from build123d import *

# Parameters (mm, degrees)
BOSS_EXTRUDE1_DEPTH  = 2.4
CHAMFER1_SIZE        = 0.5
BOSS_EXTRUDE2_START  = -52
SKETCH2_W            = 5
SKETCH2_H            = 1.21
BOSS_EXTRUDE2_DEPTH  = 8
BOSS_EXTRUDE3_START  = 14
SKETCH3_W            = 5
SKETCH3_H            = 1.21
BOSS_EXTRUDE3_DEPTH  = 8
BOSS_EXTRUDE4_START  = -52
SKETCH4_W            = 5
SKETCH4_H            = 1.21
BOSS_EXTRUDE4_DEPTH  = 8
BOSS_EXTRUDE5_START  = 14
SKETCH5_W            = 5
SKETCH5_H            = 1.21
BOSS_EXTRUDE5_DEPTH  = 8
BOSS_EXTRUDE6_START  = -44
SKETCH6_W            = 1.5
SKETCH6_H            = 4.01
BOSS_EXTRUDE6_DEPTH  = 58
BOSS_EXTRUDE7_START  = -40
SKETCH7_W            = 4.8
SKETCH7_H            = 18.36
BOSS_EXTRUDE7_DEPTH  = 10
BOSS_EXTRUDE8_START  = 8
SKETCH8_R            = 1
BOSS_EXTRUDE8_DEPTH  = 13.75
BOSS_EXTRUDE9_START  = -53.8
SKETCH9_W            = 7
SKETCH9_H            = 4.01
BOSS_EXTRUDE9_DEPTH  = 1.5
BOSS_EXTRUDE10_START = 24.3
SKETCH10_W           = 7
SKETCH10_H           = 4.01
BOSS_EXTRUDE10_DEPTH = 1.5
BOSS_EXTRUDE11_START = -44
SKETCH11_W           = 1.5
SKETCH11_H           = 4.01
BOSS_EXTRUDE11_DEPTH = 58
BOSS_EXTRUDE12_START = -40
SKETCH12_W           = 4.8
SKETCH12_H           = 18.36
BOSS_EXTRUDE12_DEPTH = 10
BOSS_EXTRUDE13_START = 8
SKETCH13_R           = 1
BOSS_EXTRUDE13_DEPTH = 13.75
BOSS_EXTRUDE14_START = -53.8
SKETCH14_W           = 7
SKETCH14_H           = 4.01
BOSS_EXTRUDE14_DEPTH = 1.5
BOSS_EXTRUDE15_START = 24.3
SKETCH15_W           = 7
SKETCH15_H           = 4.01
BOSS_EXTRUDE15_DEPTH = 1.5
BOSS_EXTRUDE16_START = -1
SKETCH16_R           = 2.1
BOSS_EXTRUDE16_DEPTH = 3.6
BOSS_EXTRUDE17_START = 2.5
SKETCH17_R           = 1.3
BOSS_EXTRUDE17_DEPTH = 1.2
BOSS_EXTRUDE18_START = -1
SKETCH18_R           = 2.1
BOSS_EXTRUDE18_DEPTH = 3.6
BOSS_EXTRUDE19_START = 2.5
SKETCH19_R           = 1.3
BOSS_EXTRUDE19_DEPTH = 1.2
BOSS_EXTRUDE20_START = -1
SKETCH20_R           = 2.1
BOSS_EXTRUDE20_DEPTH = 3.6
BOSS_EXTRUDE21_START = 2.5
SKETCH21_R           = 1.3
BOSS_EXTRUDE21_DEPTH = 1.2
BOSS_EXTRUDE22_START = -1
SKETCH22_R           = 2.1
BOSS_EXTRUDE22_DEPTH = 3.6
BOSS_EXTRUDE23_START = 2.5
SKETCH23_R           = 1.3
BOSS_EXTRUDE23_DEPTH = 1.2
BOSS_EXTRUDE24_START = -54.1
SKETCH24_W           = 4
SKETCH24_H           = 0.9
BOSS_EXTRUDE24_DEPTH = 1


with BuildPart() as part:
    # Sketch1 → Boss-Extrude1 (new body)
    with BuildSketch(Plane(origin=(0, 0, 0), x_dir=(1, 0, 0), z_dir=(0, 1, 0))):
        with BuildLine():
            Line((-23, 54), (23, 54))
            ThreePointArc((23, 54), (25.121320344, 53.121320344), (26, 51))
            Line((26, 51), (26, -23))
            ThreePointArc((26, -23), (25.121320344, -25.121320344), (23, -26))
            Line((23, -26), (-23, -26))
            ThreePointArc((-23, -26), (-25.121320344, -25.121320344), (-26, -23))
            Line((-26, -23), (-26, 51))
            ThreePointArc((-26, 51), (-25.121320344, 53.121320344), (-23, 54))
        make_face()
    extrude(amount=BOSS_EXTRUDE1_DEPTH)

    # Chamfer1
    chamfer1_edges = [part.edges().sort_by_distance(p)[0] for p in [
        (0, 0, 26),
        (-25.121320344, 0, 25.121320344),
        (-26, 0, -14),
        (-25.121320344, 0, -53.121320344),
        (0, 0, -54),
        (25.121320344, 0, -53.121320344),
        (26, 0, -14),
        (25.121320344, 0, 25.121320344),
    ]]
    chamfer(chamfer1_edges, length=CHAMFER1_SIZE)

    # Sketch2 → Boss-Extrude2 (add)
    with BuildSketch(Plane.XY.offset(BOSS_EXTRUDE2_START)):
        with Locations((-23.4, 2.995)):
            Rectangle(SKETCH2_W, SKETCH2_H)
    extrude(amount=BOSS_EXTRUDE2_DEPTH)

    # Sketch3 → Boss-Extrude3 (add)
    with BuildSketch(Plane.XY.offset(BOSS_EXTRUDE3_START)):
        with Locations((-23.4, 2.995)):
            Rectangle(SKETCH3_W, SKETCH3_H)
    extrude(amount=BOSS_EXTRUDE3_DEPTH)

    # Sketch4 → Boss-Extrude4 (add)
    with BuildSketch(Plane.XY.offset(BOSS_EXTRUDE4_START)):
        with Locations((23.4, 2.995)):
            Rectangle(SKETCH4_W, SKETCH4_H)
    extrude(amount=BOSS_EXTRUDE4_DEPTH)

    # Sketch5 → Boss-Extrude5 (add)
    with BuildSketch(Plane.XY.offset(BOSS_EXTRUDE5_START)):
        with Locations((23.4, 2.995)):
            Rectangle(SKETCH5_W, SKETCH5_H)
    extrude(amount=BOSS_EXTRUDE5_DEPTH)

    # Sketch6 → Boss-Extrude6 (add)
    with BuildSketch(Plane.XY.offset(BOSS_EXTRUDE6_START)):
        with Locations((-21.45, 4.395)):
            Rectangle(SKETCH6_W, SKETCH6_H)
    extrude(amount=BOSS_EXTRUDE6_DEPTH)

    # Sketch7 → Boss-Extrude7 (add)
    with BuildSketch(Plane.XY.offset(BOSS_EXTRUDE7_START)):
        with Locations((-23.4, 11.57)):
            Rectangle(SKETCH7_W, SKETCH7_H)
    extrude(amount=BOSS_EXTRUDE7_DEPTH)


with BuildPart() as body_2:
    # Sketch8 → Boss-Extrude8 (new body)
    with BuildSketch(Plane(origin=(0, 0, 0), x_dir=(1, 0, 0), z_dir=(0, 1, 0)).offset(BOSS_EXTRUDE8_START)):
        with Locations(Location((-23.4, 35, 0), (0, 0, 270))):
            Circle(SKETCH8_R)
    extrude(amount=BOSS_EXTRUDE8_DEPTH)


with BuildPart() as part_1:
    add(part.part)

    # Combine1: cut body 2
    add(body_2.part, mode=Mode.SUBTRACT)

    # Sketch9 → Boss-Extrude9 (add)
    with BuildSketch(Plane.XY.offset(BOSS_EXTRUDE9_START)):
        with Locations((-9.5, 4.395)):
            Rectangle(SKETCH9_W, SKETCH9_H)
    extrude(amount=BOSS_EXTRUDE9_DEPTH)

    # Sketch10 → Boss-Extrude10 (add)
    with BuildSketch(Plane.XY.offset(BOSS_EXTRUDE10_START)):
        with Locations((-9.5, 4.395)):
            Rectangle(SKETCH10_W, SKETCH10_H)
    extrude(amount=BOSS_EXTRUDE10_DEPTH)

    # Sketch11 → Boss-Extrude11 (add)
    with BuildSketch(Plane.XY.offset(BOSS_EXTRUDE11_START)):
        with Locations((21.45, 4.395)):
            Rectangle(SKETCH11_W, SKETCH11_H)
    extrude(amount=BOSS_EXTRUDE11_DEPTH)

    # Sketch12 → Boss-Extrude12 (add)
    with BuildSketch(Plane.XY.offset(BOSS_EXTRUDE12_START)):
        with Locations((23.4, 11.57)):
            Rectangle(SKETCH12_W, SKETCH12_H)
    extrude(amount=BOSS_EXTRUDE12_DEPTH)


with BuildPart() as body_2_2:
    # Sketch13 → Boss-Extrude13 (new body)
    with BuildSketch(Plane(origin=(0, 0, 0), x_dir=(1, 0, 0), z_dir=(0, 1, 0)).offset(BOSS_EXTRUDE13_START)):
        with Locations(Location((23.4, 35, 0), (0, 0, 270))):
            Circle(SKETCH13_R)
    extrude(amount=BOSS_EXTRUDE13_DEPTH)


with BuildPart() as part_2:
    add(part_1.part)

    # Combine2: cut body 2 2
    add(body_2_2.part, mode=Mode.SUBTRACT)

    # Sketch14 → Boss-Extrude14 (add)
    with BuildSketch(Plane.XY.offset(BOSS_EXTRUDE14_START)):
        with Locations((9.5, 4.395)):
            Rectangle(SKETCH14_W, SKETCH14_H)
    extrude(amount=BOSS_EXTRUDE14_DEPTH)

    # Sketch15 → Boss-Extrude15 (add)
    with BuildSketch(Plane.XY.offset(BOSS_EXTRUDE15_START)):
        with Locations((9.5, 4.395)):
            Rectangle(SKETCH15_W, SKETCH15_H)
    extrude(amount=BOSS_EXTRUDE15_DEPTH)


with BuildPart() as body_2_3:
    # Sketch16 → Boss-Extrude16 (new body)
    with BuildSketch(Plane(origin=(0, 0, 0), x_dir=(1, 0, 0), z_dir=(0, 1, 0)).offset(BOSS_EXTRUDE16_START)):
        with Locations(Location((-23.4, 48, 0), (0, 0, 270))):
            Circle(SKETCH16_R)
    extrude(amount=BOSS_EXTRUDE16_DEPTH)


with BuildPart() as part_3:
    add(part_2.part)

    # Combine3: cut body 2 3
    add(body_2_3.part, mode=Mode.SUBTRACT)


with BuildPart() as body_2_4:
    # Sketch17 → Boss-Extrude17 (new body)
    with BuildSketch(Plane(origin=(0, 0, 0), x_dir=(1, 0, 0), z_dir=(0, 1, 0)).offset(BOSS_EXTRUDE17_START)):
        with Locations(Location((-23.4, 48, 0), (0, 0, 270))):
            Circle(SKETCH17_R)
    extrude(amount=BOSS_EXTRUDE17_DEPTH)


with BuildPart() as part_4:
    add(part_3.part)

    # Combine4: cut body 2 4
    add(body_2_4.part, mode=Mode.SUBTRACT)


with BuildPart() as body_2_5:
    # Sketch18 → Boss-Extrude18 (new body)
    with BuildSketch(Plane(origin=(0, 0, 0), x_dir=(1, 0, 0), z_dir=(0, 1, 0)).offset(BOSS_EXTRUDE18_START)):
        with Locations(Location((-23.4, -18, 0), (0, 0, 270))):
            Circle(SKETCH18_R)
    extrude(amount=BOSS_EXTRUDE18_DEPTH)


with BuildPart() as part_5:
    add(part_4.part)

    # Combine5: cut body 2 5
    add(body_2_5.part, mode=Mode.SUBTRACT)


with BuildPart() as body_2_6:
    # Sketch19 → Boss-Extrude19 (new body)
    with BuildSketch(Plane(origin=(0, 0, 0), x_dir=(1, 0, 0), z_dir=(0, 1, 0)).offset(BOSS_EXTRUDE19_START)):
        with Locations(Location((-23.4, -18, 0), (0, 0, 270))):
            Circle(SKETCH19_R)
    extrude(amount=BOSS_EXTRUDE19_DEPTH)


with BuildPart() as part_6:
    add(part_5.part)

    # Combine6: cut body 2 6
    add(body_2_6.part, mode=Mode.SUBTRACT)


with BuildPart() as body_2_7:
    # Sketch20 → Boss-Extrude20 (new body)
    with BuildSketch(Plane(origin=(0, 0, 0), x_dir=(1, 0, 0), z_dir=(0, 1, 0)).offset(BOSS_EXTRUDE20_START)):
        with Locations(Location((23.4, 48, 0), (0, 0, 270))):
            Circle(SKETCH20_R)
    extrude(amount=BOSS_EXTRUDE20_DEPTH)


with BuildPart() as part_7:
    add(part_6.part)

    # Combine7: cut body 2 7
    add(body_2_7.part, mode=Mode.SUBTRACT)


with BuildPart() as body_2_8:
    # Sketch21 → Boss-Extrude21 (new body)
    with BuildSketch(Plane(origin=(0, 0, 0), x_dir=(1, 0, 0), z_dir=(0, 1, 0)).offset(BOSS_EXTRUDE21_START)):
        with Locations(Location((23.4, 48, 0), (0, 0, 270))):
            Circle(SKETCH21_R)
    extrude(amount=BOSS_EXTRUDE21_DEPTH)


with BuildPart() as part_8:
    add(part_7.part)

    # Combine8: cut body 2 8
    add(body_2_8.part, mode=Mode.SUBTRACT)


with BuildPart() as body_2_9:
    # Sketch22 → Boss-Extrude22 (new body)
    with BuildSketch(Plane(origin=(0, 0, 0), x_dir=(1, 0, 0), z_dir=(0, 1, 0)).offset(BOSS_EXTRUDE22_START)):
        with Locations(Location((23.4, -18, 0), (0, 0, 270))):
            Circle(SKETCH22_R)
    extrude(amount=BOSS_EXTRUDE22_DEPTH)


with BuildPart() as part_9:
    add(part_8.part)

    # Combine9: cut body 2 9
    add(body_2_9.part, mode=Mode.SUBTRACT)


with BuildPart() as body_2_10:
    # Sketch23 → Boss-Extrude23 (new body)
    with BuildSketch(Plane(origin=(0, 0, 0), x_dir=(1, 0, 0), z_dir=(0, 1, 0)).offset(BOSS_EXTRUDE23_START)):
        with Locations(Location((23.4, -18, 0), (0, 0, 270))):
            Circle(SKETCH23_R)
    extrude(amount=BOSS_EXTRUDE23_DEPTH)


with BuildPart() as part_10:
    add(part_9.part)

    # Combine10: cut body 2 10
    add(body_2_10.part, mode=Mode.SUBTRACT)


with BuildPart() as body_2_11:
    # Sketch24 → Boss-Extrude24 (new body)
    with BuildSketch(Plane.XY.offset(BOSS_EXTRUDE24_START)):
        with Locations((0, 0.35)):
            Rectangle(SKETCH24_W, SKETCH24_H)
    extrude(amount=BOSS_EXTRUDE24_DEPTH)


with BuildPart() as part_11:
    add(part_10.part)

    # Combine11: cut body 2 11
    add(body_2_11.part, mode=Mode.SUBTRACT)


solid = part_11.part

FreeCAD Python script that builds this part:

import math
import FreeCAD as App
import Part
import Sketcher


def edges_at(feature, points):
    """Names of the edges that pass closest to the given points."""
    edges = feature.Shape.Edges
    near = lambda p: min(range(len(edges)), key=lambda i: edges[i].distToShape(Part.Vertex(*p))[0])
    return sorted({f"Edge{near(p) + 1}" for p in points})


def add_polygon(sketch, points):
    """Adds a closed chain of lines whose ends are joined by coincident constraints."""
    first, n = sketch.GeometryCount, len(points)
    for a, b in zip(points, points[1:] + points[:1]):
        sketch.addGeometry(Part.LineSegment(App.Vector(*a, 0), App.Vector(*b, 0)), False)
    for i in range(n):
        sketch.addConstraint(Sketcher.Constraint("Coincident", first + i, 2, first + (i + 1) % n, 1))

doc = App.newDocument("Part")
body = doc.addObject("PartDesign::Body", "Body")

sketch1 = body.newObject("Sketcher::SketchObject", "Sketch")
sketch1.AttachmentSupport = (doc.getObject("XZ_Plane"), [""])
sketch1.MapMode = "FlatFace"
sketch1.addGeometry([
    Part.LineSegment(App.Vector(23, -54, 0), App.Vector(-23, -54, 0)),
    Part.ArcOfCircle(Part.Circle(App.Vector(-23, -51, 0), App.Vector(0, 0, 1), 3), math.radians(180), math.radians(270)),
    Part.LineSegment(App.Vector(-26, -51, 0), App.Vector(-26, 23, 0)),
    Part.ArcOfCircle(Part.Circle(App.Vector(-23, 23, 0), App.Vector(0, 0, 1), 3), math.radians(90), math.radians(180)),
    Part.LineSegment(App.Vector(-23, 26, 0), App.Vector(23, 26, 0)),
    Part.ArcOfCircle(Part.Circle(App.Vector(23, 23, 0), App.Vector(0, 0, 1), 3), math.radians(0), math.radians(90)),
    Part.LineSegment(App.Vector(26, 23, 0), App.Vector(26, -51, 0)),
    Part.ArcOfCircle(Part.Circle(App.Vector(23, -51, 0), App.Vector(0, 0, 1), 3), math.radians(-90), math.radians(0)),
], False)
sketch1.addConstraint([
    Sketcher.Constraint("Tangent", 0, 2, 1, 2),
    Sketcher.Constraint("Tangent", 1, 1, 2, 1),
    Sketcher.Constraint("Tangent", 2, 2, 3, 2),
    Sketcher.Constraint("Tangent", 3, 1, 4, 1),
    Sketcher.Constraint("Tangent", 4, 2, 5, 2),
    Sketcher.Constraint("Tangent", 5, 1, 6, 1),
    Sketcher.Constraint("Tangent", 6, 2, 7, 2),
    Sketcher.Constraint("Tangent", 7, 1, 0, 1),
    Sketcher.Constraint("Horizontal", 0),
    Sketcher.Constraint("Vertical", 2),
    Sketcher.Constraint("Horizontal", 4),
    Sketcher.Constraint("Vertical", 6),
    Sketcher.Constraint("Equal", 1, 3),
    Sketcher.Constraint("Equal", 3, 5),
    Sketcher.Constraint("Equal", 5, 7),
    Sketcher.Constraint("Radius", 1, 3.0),
    Sketcher.Constraint("DistanceX", 0, 2, 0, 1, 46.0),
    Sketcher.Constraint("DistanceY", 2, 1, 2, 2, 74.0),
    Sketcher.Constraint("DistanceX", 1, 3, -1, 1, 23.0),
    Sketcher.Constraint("DistanceY", 1, 3, -1, 1, 51.0),
])
pad1 = body.newObject("PartDesign::Pad", "Pad")
pad1.Profile = sketch1
pad1.Length = 2.4
pad1.Reversed = True
doc.recompute()

chamfer = body.newObject("PartDesign::Chamfer", "Chamfer")
chamfer.Base = (pad1, edges_at(pad1, [
    (0, 0, 26),
    (-25.121, 0, 25.121),
    (-26, 0, -14),
    (-25.121, 0, -53.121),
    (0, 0, -54),
    (25.121, 0, -53.121),
    (26, 0, -14),
    (25.121, 0, 25.121),
]))
chamfer.Size = 0.5

sketch2 = body.newObject("Sketcher::SketchObject", "Sketch001")
sketch2.AttachmentSupport = (doc.getObject("XY_Plane"), [""])
sketch2.MapMode = "FlatFace"
sketch2.AttachmentOffset = App.Placement(App.Vector(0, 0, -52), App.Rotation())
add_polygon(sketch2, [(-25.9, 3.6), (-25.9, 2.4), (-20.9, 2.4), (-20.9, 3.6)])
sketch2.addConstraint([
    Sketcher.Constraint("Vertical", 0),
    Sketcher.Constraint("Horizontal", 1),
    Sketcher.Constraint("Vertical", 2),
    Sketcher.Constraint("Horizontal", 3),
    Sketcher.Constraint("DistanceX", 1, 1, 1, 2, 5.0),
    Sketcher.Constraint("DistanceY", 0, 2, 0, 1, 1.21),
    Sketcher.Constraint("DistanceX", 0, 2, -1, 1, 25.9),
    Sketcher.Constraint("DistanceY", -1, 1, 2, 2, 3.6),
])
pad2 = body.newObject("PartDesign::Pad", "Pad001")
pad2.Profile = sketch2
pad2.Length = 8

sketch3 = body.newObject("Sketcher::SketchObject", "Sketch002")
sketch3.AttachmentSupport = (doc.getObject("XY_Plane"), [""])
sketch3.MapMode = "FlatFace"
sketch3.AttachmentOffset = App.Placement(App.Vector(0, 0, 14), App.Rotation())
add_polygon(sketch3, [(-25.9, 3.6), (-25.9, 2.4), (-20.9, 2.4), (-20.9, 3.6)])
sketch3.addConstraint([
    Sketcher.Constraint("Vertical", 0),
    Sketcher.Constraint("Horizontal", 1),
    Sketcher.Constraint("Vertical", 2),
    Sketcher.Constraint("Horizontal", 3),
    Sketcher.Constraint("DistanceX", 1, 1, 1, 2, 5.0),
    Sketcher.Constraint("DistanceY", 0, 2, 0, 1, 1.21),
    Sketcher.Constraint("DistanceX", 0, 2, -1, 1, 25.9),
    Sketcher.Constraint("DistanceY", -1, 1, 2, 2, 3.6),
])
pad3 = body.newObject("PartDesign::Pad", "Pad002")
pad3.Profile = sketch3
pad3.Length = 8

sketch4 = body.newObject("Sketcher::SketchObject", "Sketch003")
sketch4.AttachmentSupport = (doc.getObject("XY_Plane"), [""])
sketch4.MapMode = "FlatFace"
sketch4.AttachmentOffset = App.Placement(App.Vector(0, 0, -52), App.Rotation())
add_polygon(sketch4, [(20.9, 3.6), (20.9, 2.4), (25.9, 2.4), (25.9, 3.6)])
sketch4.addConstraint([
    Sketcher.Constraint("Vertical", 0),
    Sketcher.Constraint("Horizontal", 1),
    Sketcher.Constraint("Vertical", 2),
    Sketcher.Constraint("Horizontal", 3),
    Sketcher.Constraint("DistanceX", 1, 1, 1, 2, 5.0),
    Sketcher.Constraint("DistanceY", 0, 2, 0, 1, 1.21),
    Sketcher.Constraint("DistanceX", -1, 1, 0, 2, 20.9),
    Sketcher.Constraint("DistanceY", -1, 1, 2, 2, 3.6),
])
pad4 = body.newObject("PartDesign::Pad", "Pad003")
pad4.Profile = sketch4
pad4.Length = 8

sketch5 = body.newObject("Sketcher::SketchObject", "Sketch004")
sketch5.AttachmentSupport = (doc.getObject("XY_Plane"), [""])
sketch5.MapMode = "FlatFace"
sketch5.AttachmentOffset = App.Placement(App.Vector(0, 0, 14), App.Rotation())
add_polygon(sketch5, [(20.9, 3.6), (20.9, 2.4), (25.9, 2.4), (25.9, 3.6)])
sketch5.addConstraint([
    Sketcher.Constraint("Vertical", 0),
    Sketcher.Constraint("Horizontal", 1),
    Sketcher.Constraint("Vertical", 2),
    Sketcher.Constraint("Horizontal", 3),
    Sketcher.Constraint("DistanceX", 1, 1, 1, 2, 5.0),
    Sketcher.Constraint("DistanceY", 0, 2, 0, 1, 1.21),
    Sketcher.Constraint("DistanceX", -1, 1, 0, 2, 20.9),
    Sketcher.Constraint("DistanceY", -1, 1, 2, 2, 3.6),
])
pad5 = body.newObject("PartDesign::Pad", "Pad004")
pad5.Profile = sketch5
pad5.Length = 8

sketch6 = body.newObject("Sketcher::SketchObject", "Sketch005")
sketch6.AttachmentSupport = (doc.getObject("XY_Plane"), [""])
sketch6.MapMode = "FlatFace"
sketch6.AttachmentOffset = App.Placement(App.Vector(0, 0, -44), App.Rotation())
add_polygon(sketch6, [(-22.2, 6.4), (-22.2, 2.4), (-20.7, 2.4), (-20.7, 6.4)])
sketch6.addConstraint([
    Sketcher.Constraint("Vertical", 0),
    Sketcher.Constraint("Horizontal", 1),
    Sketcher.Constraint("Vertical", 2),
    Sketcher.Constraint("Horizontal", 3),
    Sketcher.Constraint("DistanceX", 1, 1, 1, 2, 1.5),
    Sketcher.Constraint("DistanceY", 0, 2, 0, 1, 4.01),
    Sketcher.Constraint("DistanceX", 0, 2, -1, 1, 22.2),
    Sketcher.Constraint("DistanceY", -1, 1, 2, 2, 6.4),
])
pad6 = body.newObject("PartDesign::Pad", "Pad005")
pad6.Profile = sketch6
pad6.Length = 58

sketch7 = body.newObject("Sketcher::SketchObject", "Sketch006")
sketch7.AttachmentSupport = (doc.getObject("XY_Plane"), [""])
sketch7.MapMode = "FlatFace"
sketch7.AttachmentOffset = App.Placement(App.Vector(0, 0, -40), App.Rotation())
add_polygon(sketch7, [(-25.8, 20.8), (-25.8, 2.4), (-21, 2.4), (-21, 20.8)])
sketch7.addConstraint([
    Sketcher.Constraint("Vertical", 0),
    Sketcher.Constraint("Horizontal", 1),
    Sketcher.Constraint("Vertical", 2),
    Sketcher.Constraint("Horizontal", 3),
    Sketcher.Constraint("DistanceX", 1, 1, 1, 2, 4.8),
    Sketcher.Constraint("DistanceX", 1, 2, -1, 1, 21.0),
    Sketcher.Constraint("DistanceY", 0, 2, 0, 1, 18.36),
    Sketcher.Constraint("DistanceY", -1, 1, 0, 2, 2.39),
])
pad7 = body.newObject("PartDesign::Pad", "Pad006")
pad7.Profile = sketch7
pad7.Length = 10
body2 = doc.addObject("PartDesign::Body", "Body001")

sketch8 = body2.newObject("Sketcher::SketchObject", "Sketch007")
sketch8.AttachmentSupport = (doc.getObject("XZ_Plane001"), [""])
sketch8.MapMode = "FlatFace"
sketch8.AttachmentOffset = App.Placement(App.Vector(0, 0, -8), App.Rotation())
sketch8.addGeometry(Part.Circle(App.Vector(-23.4, -35, 0), App.Vector(0, 0, 1), 1), False)
sketch8.addConstraint([
    Sketcher.Constraint("Diameter", 0, 2.0),
    Sketcher.Constraint("DistanceY", 0, 3, -1, 1, 35.0),
    Sketcher.Constraint("DistanceX", 0, 3, -1, 1, 23.4),
])
pad8 = body2.newObject("PartDesign::Pad", "Pad007")
pad8.Profile = sketch8
pad8.Length = 13.75
pad8.Reversed = True
doc.recompute()

boolean = body.newObject("PartDesign::Boolean", "Boolean")
boolean.Type = "Cut"
boolean.addObjects([body2])

sketch9 = body.newObject("Sketcher::SketchObject", "Sketch008")
sketch9.AttachmentSupport = (doc.getObject("XY_Plane"), [""])
sketch9.MapMode = "FlatFace"
sketch9.AttachmentOffset = App.Placement(App.Vector(0, 0, -53.8), App.Rotation())
add_polygon(sketch9, [(-13, 6.4), (-13, 2.4), (-6, 2.4), (-6, 6.4)])
sketch9.addConstraint([
    Sketcher.Constraint("Vertical", 0),
    Sketcher.Constraint("Horizontal", 1),
    Sketcher.Constraint("Vertical", 2),
    Sketcher.Constraint("Horizontal", 3),
    Sketcher.Constraint("DistanceX", 1, 1, 1, 2, 7.0),
    Sketcher.Constraint("DistanceX", 0, 2, -1, 1, 13.0),
    Sketcher.Constraint("DistanceY", 0, 2, 0, 1, 4.01),
    Sketcher.Constraint("DistanceY", -1, 1, 2, 2, 6.4),
])
pad9 = body.newObject("PartDesign::Pad", "Pad008")
pad9.Profile = sketch9
pad9.Length = 1.5

sketch10 = body.newObject("Sketcher::SketchObject", "Sketch009")
sketch10.AttachmentSupport = (doc.getObject("XY_Plane"), [""])
sketch10.MapMode = "FlatFace"
sketch10.AttachmentOffset = App.Placement(App.Vector(0, 0, 24.3), App.Rotation())
add_polygon(sketch10, [(-13, 6.4), (-13, 2.4), (-6, 2.4), (-6, 6.4)])
sketch10.addConstraint([
    Sketcher.Constraint("Vertical", 0),
    Sketcher.Constraint("Horizontal", 1),
    Sketcher.Constraint("Vertical", 2),
    Sketcher.Constraint("Horizontal", 3),
    Sketcher.Constraint("DistanceX", 1, 1, 1, 2, 7.0),
    Sketcher.Constraint("DistanceX", 0, 2, -1, 1, 13.0),
    Sketcher.Constraint("DistanceY", 0, 2, 0, 1, 4.01),
    Sketcher.Constraint("DistanceY", -1, 1, 2, 2, 6.4),
])
pad10 = body.newObject("PartDesign::Pad", "Pad009")
pad10.Profile = sketch10
pad10.Length = 1.5

sketch11 = body.newObject("Sketcher::SketchObject", "Sketch010")
sketch11.AttachmentSupport = (doc.getObject("XY_Plane"), [""])
sketch11.MapMode = "FlatFace"
sketch11.AttachmentOffset = App.Placement(App.Vector(0, 0, -44), App.Rotation())
add_polygon(sketch11, [(20.7, 6.4), (20.7, 2.4), (22.2, 2.4), (22.2, 6.4)])
sketch11.addConstraint([
    Sketcher.Constraint("Vertical", 0),
    Sketcher.Constraint("Horizontal", 1),
    Sketcher.Constraint("Vertical", 2),
    Sketcher.Constraint("Horizontal", 3),
    Sketcher.Constraint("DistanceX", 1, 1, 1, 2, 1.5),
    Sketcher.Constraint("DistanceY", 0, 2, 0, 1, 4.01),
    Sketcher.Constraint("DistanceX", -1, 1, 0, 2, 20.7),
    Sketcher.Constraint("DistanceY", -1, 1, 2, 2, 6.4),
])
pad11 = body.newObject("PartDesign::Pad", "Pad010")
pad11.Profile = sketch11
pad11.Length = 58

sketch12 = body.newObject("Sketcher::SketchObject", "Sketch011")
sketch12.AttachmentSupport = (doc.getObject("XY_Plane"), [""])
sketch12.MapMode = "FlatFace"
sketch12.AttachmentOffset = App.Placement(App.Vector(0, 0, -40), App.Rotation())
add_polygon(sketch12, [(21, 20.8), (21, 2.4), (25.8, 2.4), (25.8, 20.8)])
sketch12.addConstraint([
    Sketcher.Constraint("Vertical", 0),
    Sketcher.Constraint("Horizontal", 1),
    Sketcher.Constraint("Vertical", 2),
    Sketcher.Constraint("Horizontal", 3),
    Sketcher.Constraint("DistanceX", 1, 1, 1, 2, 4.8),
    Sketcher.Constraint("DistanceX", -1, 1, 0, 2, 21.0),
    Sketcher.Constraint("DistanceY", 0, 2, 0, 1, 18.36),
    Sketcher.Constraint("DistanceY", -1, 1, 0, 2, 2.39),
])
pad12 = body.newObject("PartDesign::Pad", "Pad011")
pad12.Profile = sketch12
pad12.Length = 10
body3 = doc.addObject("PartDesign::Body", "Body002")

sketch13 = body3.newObject("Sketcher::SketchObject", "Sketch012")
sketch13.AttachmentSupport = (doc.getObject("XZ_Plane002"), [""])
sketch13.MapMode = "FlatFace"
sketch13.AttachmentOffset = App.Placement(App.Vector(0, 0, -8), App.Rotation())
sketch13.addGeometry(Part.Circle(App.Vector(23.4, -35, 0), App.Vector(0, 0, 1), 1), False)
sketch13.addConstraint([
    Sketcher.Constraint("Diameter", 0, 2.0),
    Sketcher.Constraint("DistanceY", 0, 3, -1, 1, 35.0),
    Sketcher.Constraint("DistanceX", -1, 1, 0, 3, 23.4),
])
pad13 = body3.newObject("PartDesign::Pad", "Pad012")
pad13.Profile = sketch13
pad13.Length = 13.75
pad13.Reversed = True
doc.recompute()

boolean2 = body.newObject("PartDesign::Boolean", "Boolean001")
boolean2.Type = "Cut"
boolean2.addObjects([body3])

sketch14 = body.newObject("Sketcher::SketchObject", "Sketch013")
sketch14.AttachmentSupport = (doc.getObject("XY_Plane"), [""])
sketch14.MapMode = "FlatFace"
sketch14.AttachmentOffset = App.Placement(App.Vector(0, 0, -53.8), App.Rotation())
add_polygon(sketch14, [(6, 6.4), (6, 2.4), (13, 2.4), (13, 6.4)])
sketch14.addConstraint([
    Sketcher.Constraint("Vertical", 0),
    Sketcher.Constraint("Horizontal", 1),
    Sketcher.Constraint("Vertical", 2),
    Sketcher.Constraint("Horizontal", 3),
    Sketcher.Constraint("DistanceX", 1, 1, 1, 2, 7.0),
    Sketcher.Constraint("DistanceX", -1, 1, 0, 2, 6.0),
    Sketcher.Constraint("DistanceY", 0, 2, 0, 1, 4.01),
    Sketcher.Constraint("DistanceY", -1, 1, 2, 2, 6.4),
])
pad14 = body.newObject("PartDesign::Pad", "Pad013")
pad14.Profile = sketch14
pad14.Length = 1.5

sketch15 = body.newObject("Sketcher::SketchObject", "Sketch014")
sketch15.AttachmentSupport = (doc.getObject("XY_Plane"), [""])
sketch15.MapMode = "FlatFace"
sketch15.AttachmentOffset = App.Placement(App.Vector(0, 0, 24.3), App.Rotation())
add_polygon(sketch15, [(6, 6.4), (6, 2.4), (13, 2.4), (13, 6.4)])
sketch15.addConstraint([
    Sketcher.Constraint("Vertical", 0),
    Sketcher.Constraint("Horizontal", 1),
    Sketcher.Constraint("Vertical", 2),
    Sketcher.Constraint("Horizontal", 3),
    Sketcher.Constraint("DistanceX", 1, 1, 1, 2, 7.0),
    Sketcher.Constraint("DistanceX", -1, 1, 0, 2, 6.0),
    Sketcher.Constraint("DistanceY", 0, 2, 0, 1, 4.01),
    Sketcher.Constraint("DistanceY", -1, 1, 2, 2, 6.4),
])
pad15 = body.newObject("PartDesign::Pad", "Pad014")
pad15.Profile = sketch15
pad15.Length = 1.5
body4 = doc.addObject("PartDesign::Body", "Body003")

sketch16 = body4.newObject("Sketcher::SketchObject", "Sketch015")
sketch16.AttachmentSupport = (doc.getObject("XZ_Plane003"), [""])
sketch16.MapMode = "FlatFace"
sketch16.AttachmentOffset = App.Placement(App.Vector(0, 0, 1), App.Rotation())
sketch16.addGeometry(Part.Circle(App.Vector(-23.4, -48, 0), App.Vector(0, 0, 1), 2.1), False)
sketch16.addConstraint([
    Sketcher.Constraint("Diameter", 0, 4.2),
    Sketcher.Constraint("DistanceY", 0, 3, -1, 1, 48.0),
    Sketcher.Constraint("DistanceX", 0, 3, -1, 1, 23.4),
])
pad16 = body4.newObject("PartDesign::Pad", "Pad015")
pad16.Profile = sketch16
pad16.Length = 3.6
pad16.Reversed = True
doc.recompute()

boolean3 = body.newObject("PartDesign::Boolean", "Boolean002")
boolean3.Type = "Cut"
boolean3.addObjects([body4])
body5 = doc.addObject("PartDesign::Body", "Body004")

sketch17 = body5.newObject("Sketcher::SketchObject", "Sketch016")
sketch17.AttachmentSupport = (doc.getObject("XZ_Plane004"), [""])
sketch17.MapMode = "FlatFace"
sketch17.AttachmentOffset = App.Placement(App.Vector(0, 0, -2.5), App.Rotation())
sketch17.addGeometry(Part.Circle(App.Vector(-23.4, -48, 0), App.Vector(0, 0, 1), 1.3), False)
sketch17.addConstraint([
    Sketcher.Constraint("Diameter", 0, 2.6),
    Sketcher.Constraint("DistanceY", 0, 3, -1, 1, 48.0),
    Sketcher.Constraint("DistanceX", 0, 3, -1, 1, 23.4),
])
pad17 = body5.newObject("PartDesign::Pad", "Pad016")
pad17.Profile = sketch17
pad17.Length = 1.2
pad17.Reversed = True
doc.recompute()

boolean4 = body.newObject("PartDesign::Boolean", "Boolean003")
boolean4.Type = "Cut"
boolean4.addObjects([body5])
body6 = doc.addObject("PartDesign::Body", "Body005")

sketch18 = body6.newObject("Sketcher::SketchObject", "Sketch017")
sketch18.AttachmentSupport = (doc.getObject("XZ_Plane005"), [""])
sketch18.MapMode = "FlatFace"
sketch18.AttachmentOffset = App.Placement(App.Vector(0, 0, 1), App.Rotation())
sketch18.addGeometry(Part.Circle(App.Vector(-23.4, 18, 0), App.Vector(0, 0, 1), 2.1), False)
sketch18.addConstraint([
    Sketcher.Constraint("Diameter", 0, 4.2),
    Sketcher.Constraint("DistanceY", -1, 1, 0, 3, 18.0),
    Sketcher.Constraint("DistanceX", 0, 3, -1, 1, 23.4),
])
pad18 = body6.newObject("PartDesign::Pad", "Pad017")
pad18.Profile = sketch18
pad18.Length = 3.6
pad18.Reversed = True
doc.recompute()

boolean5 = body.newObject("PartDesign::Boolean", "Boolean004")
boolean5.Type = "Cut"
boolean5.addObjects([body6])
body7 = doc.addObject("PartDesign::Body", "Body006")

sketch19 = body7.newObject("Sketcher::SketchObject", "Sketch018")
sketch19.AttachmentSupport = (doc.getObject("XZ_Plane006"), [""])
sketch19.MapMode = "FlatFace"
sketch19.AttachmentOffset = App.Placement(App.Vector(0, 0, -2.5), App.Rotation())
sketch19.addGeometry(Part.Circle(App.Vector(-23.4, 18, 0), App.Vector(0, 0, 1), 1.3), False)
sketch19.addConstraint([
    Sketcher.Constraint("Diameter", 0, 2.6),
    Sketcher.Constraint("DistanceY", -1, 1, 0, 3, 18.0),
    Sketcher.Constraint("DistanceX", 0, 3, -1, 1, 23.4),
])
pad19 = body7.newObject("PartDesign::Pad", "Pad018")
pad19.Profile = sketch19
pad19.Length = 1.2
pad19.Reversed = True
doc.recompute()

boolean6 = body.newObject("PartDesign::Boolean", "Boolean005")
boolean6.Type = "Cut"
boolean6.addObjects([body7])
body8 = doc.addObject("PartDesign::Body", "Body007")

sketch20 = body8.newObject("Sketcher::SketchObject", "Sketch019")
sketch20.AttachmentSupport = (doc.getObject("XZ_Plane007"), [""])
sketch20.MapMode = "FlatFace"
sketch20.AttachmentOffset = App.Placement(App.Vector(0, 0, 1), App.Rotation())
sketch20.addGeometry(Part.Circle(App.Vector(23.4, -48, 0), App.Vector(0, 0, 1), 2.1), False)
sketch20.addConstraint([
    Sketcher.Constraint("Diameter", 0, 4.2),
    Sketcher.Constraint("DistanceY", 0, 3, -1, 1, 48.0),
    Sketcher.Constraint("DistanceX", -1, 1, 0, 3, 23.4),
])
pad20 = body8.newObject("PartDesign::Pad", "Pad019")
pad20.Profile = sketch20
pad20.Length = 3.6
pad20.Reversed = True
doc.recompute()

boolean7 = body.newObject("PartDesign::Boolean", "Boolean006")
boolean7.Type = "Cut"
boolean7.addObjects([body8])
body9 = doc.addObject("PartDesign::Body", "Body008")

sketch21 = body9.newObject("Sketcher::SketchObject", "Sketch020")
sketch21.AttachmentSupport = (doc.getObject("XZ_Plane008"), [""])
sketch21.MapMode = "FlatFace"
sketch21.AttachmentOffset = App.Placement(App.Vector(0, 0, -2.5), App.Rotation())
sketch21.addGeometry(Part.Circle(App.Vector(23.4, -48, 0), App.Vector(0, 0, 1), 1.3), False)
sketch21.addConstraint([
    Sketcher.Constraint("Diameter", 0, 2.6),
    Sketcher.Constraint("DistanceY", 0, 3, -1, 1, 48.0),
    Sketcher.Constraint("DistanceX", -1, 1, 0, 3, 23.4),
])
pad21 = body9.newObject("PartDesign::Pad", "Pad020")
pad21.Profile = sketch21
pad21.Length = 1.2
pad21.Reversed = True
doc.recompute()

boolean8 = body.newObject("PartDesign::Boolean", "Boolean007")
boolean8.Type = "Cut"
boolean8.addObjects([body9])
body10 = doc.addObject("PartDesign::Body", "Body009")

sketch22 = body10.newObject("Sketcher::SketchObject", "Sketch021")
sketch22.AttachmentSupport = (doc.getObject("XZ_Plane009"), [""])
sketch22.MapMode = "FlatFace"
sketch22.AttachmentOffset = App.Placement(App.Vector(0, 0, 1), App.Rotation())
sketch22.addGeometry(Part.Circle(App.Vector(23.4, 18, 0), App.Vector(0, 0, 1), 2.1), False)
sketch22.addConstraint([
    Sketcher.Constraint("Diameter", 0, 4.2),
    Sketcher.Constraint("DistanceY", -1, 1, 0, 3, 18.0),
    Sketcher.Constraint("DistanceX", -1, 1, 0, 3, 23.4),
])
pad22 = body10.newObject("PartDesign::Pad", "Pad021")
pad22.Profile = sketch22
pad22.Length = 3.6
pad22.Reversed = True
doc.recompute()

boolean9 = body.newObject("PartDesign::Boolean", "Boolean008")
boolean9.Type = "Cut"
boolean9.addObjects([body10])
body11 = doc.addObject("PartDesign::Body", "Body010")

sketch23 = body11.newObject("Sketcher::SketchObject", "Sketch022")
sketch23.AttachmentSupport = (doc.getObject("XZ_Plane010"), [""])
sketch23.MapMode = "FlatFace"
sketch23.AttachmentOffset = App.Placement(App.Vector(0, 0, -2.5), App.Rotation())
sketch23.addGeometry(Part.Circle(App.Vector(23.4, 18, 0), App.Vector(0, 0, 1), 1.3), False)
sketch23.addConstraint([
    Sketcher.Constraint("Diameter", 0, 2.6),
    Sketcher.Constraint("DistanceY", -1, 1, 0, 3, 18.0),
    Sketcher.Constraint("DistanceX", -1, 1, 0, 3, 23.4),
])
pad23 = body11.newObject("PartDesign::Pad", "Pad022")
pad23.Profile = sketch23
pad23.Length = 1.2
pad23.Reversed = True
doc.recompute()

boolean10 = body.newObject("PartDesign::Boolean", "Boolean009")
boolean10.Type = "Cut"
boolean10.addObjects([body11])
body12 = doc.addObject("PartDesign::Body", "Body011")

sketch24 = body12.newObject("Sketcher::SketchObject", "Sketch023")
sketch24.AttachmentSupport = (doc.getObject("XY_Plane011"), [""])
sketch24.MapMode = "FlatFace"
sketch24.AttachmentOffset = App.Placement(App.Vector(0, 0, -54.1), App.Rotation())
add_polygon(sketch24, [(-2, 0.8), (-2, -0.1), (2, -0.1), (2, 0.8)])
sketch24.addConstraint([
    Sketcher.Constraint("Vertical", 0),
    Sketcher.Constraint("Horizontal", 1),
    Sketcher.Constraint("Vertical", 2),
    Sketcher.Constraint("Horizontal", 3),
    Sketcher.Constraint("DistanceX", 1, 1, 1, 2, 4.0),
    Sketcher.Constraint("DistanceY", 0, 2, 0, 1, 0.9),
    Sketcher.Constraint("DistanceX", 0, 2, -1, 1, 2.0),
    Sketcher.Constraint("DistanceY", 0, 2, -1, 1, 0.1),
])
pad24 = body12.newObject("PartDesign::Pad", "Pad023")
pad24.Profile = sketch24
pad24.Length = 1
doc.recompute()

boolean11 = body.newObject("PartDesign::Boolean", "Boolean010")
boolean11.Type = "Cut"
boolean11.addObjects([body12])

doc.recompute()
